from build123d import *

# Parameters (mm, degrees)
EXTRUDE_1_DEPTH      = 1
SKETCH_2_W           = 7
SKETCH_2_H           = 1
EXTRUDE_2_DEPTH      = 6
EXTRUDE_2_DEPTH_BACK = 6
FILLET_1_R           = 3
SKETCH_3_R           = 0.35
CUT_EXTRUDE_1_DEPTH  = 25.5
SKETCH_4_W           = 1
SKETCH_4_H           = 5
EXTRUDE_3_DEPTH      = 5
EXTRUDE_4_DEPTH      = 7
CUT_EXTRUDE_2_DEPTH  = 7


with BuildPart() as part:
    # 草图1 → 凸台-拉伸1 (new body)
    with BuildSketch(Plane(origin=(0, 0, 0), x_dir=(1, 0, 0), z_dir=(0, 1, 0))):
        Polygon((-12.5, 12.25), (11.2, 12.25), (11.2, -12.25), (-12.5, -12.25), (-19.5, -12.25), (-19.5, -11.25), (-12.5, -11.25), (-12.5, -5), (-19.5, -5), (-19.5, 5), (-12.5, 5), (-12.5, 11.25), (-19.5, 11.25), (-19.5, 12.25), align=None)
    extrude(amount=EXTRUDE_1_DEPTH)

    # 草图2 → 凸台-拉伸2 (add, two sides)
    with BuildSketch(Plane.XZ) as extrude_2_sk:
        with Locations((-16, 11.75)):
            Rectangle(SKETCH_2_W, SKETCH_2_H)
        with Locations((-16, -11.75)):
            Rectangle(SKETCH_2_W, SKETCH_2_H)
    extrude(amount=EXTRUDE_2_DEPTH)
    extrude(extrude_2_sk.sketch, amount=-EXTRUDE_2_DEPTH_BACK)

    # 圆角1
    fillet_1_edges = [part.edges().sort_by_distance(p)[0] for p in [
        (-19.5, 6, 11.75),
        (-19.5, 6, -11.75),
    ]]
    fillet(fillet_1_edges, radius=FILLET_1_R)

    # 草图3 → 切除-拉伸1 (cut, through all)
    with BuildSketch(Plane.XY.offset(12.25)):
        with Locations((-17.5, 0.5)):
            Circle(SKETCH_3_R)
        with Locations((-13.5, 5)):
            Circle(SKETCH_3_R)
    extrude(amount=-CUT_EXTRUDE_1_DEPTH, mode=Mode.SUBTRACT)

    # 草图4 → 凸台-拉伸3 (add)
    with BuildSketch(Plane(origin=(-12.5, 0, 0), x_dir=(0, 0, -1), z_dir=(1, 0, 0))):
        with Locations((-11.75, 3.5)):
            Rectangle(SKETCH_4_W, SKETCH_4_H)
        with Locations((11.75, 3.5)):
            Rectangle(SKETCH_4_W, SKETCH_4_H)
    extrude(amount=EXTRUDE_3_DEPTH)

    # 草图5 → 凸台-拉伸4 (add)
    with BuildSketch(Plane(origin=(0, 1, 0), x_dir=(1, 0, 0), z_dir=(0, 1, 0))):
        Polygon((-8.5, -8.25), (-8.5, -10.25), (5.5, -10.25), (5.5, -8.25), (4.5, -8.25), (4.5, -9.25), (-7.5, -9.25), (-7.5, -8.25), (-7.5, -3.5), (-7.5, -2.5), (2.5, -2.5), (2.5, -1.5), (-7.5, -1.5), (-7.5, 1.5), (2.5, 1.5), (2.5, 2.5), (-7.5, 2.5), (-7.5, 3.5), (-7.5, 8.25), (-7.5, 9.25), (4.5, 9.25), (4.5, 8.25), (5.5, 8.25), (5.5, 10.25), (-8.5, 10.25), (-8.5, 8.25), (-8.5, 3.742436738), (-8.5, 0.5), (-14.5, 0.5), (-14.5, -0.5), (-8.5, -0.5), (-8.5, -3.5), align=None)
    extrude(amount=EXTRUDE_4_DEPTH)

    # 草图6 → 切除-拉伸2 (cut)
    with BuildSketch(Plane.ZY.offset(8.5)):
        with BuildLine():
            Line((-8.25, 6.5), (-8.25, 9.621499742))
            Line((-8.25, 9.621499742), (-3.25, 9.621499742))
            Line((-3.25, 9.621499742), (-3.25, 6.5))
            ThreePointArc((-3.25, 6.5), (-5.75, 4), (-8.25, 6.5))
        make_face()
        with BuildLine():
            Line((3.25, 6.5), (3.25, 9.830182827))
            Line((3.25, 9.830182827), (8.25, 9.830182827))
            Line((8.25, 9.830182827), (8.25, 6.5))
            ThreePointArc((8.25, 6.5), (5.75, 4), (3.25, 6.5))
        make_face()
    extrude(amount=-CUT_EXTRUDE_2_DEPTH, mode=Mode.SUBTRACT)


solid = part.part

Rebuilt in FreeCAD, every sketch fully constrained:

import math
import FreeCAD as App
import Part
import Sketcher
Q = App.Units.Quantity


def edges_at(feature, points):
    """Names of the edges that pass closest to the given points."""
    edges = feature.Shape.Edges
    near = lambda p: min(range(len(edges)), key=lambda i: edges[i].distToShape(Part.Vertex(*p))[0])
    return sorted({f"Edge{near(p) + 1}" for p in points})

doc = App.newDocument("Part")
body = doc.addObject("PartDesign::Body", "Body")

sketch1 = body.newObject("Sketcher::SketchObject", "Sketch")
sketch1.AttachmentSupport = (doc.getObject("XZ_Plane"), [""])
sketch1.MapMode = "FlatFace"
sketch1.addGeometry(Part.LineSegment(App.Vector(11.2, -12.2, 0), App.Vector(-19.5, -12.2, 0)), False)
sketch1.addGeometry(Part.LineSegment(App.Vector(-19.5, -12.2, 0), App.Vector(-19.5, -11.2, 0)), False)
sketch1.addGeometry(Part.LineSegment(App.Vector(-19.5, -11.2, 0), App.Vector(-12.5, -11.2, 0)), False)
sketch1.addGeometry(Part.LineSegment(App.Vector(-12.5, -11.2, 0), App.Vector(-12.5, -5, 0)), False)
sketch1.addGeometry(Part.LineSegment(App.Vector(-12.5, -5, 0), App.Vector(-19.5, -5, 0)), False)
sketch1.addGeometry(Part.LineSegment(App.Vector(-19.5, -5, 0), App.Vector(-19.5, 5, 0)), False)
sketch1.addGeometry(Part.LineSegment(App.Vector(-19.5, 5, 0), App.Vector(-12.5, 5, 0)), False)
sketch1.addGeometry(Part.LineSegment(App.Vector(-12.5, 5, 0), App.Vector(-12.5, 11.2, 0)), False)
sketch1.addGeometry(Part.LineSegment(App.Vector(-12.5, 11.2, 0), App.Vector(-19.5, 11.2, 0)), False)
sketch1.addGeometry(Part.LineSegment(App.Vector(-19.5, 11.2, 0), App.Vector(-19.5, 12.2, 0)), False)
sketch1.addGeometry(Part.LineSegment(App.Vector(-19.5, 12.2, 0), App.Vector(11.2, 12.2, 0)), False)
sketch1.addGeometry(Part.LineSegment(App.Vector(11.2, 12.2, 0), App.Vector(11.2, -12.2, 0)), False)
sketch1.addConstraint(Sketcher.Constraint("Coincident", 0, 2, 1, 1))
sketch1.addConstraint(Sketcher.Constraint("Coincident", 1, 2, 2, 1))
sketch1.addConstraint(Sketcher.Constraint("Coincident", 2, 2, 3, 1))
sketch1.addConstraint(Sketcher.Constraint("Coincident", 3, 2, 4, 1))
sketch1.addConstraint(Sketcher.Constraint("Coincident", 4, 2, 5, 1))
sketch1.addConstraint(Sketcher.Constraint("Coincident", 5, 2, 6, 1))
sketch1.addConstraint(Sketcher.Constraint("Coincident", 6, 2, 7, 1))
sketch1.addConstraint(Sketcher.Constraint("Coincident", 7, 2, 8, 1))
sketch1.addConstraint(Sketcher.Constraint("Coincident", 8, 2, 9, 1))
sketch1.addConstraint(Sketcher.Constraint("Coincident", 9, 2, 10, 1))
sketch1.addConstraint(Sketcher.Constraint("Coincident", 10, 2, 11, 1))
sketch1.addConstraint(Sketcher.Constraint("Coincident", 11, 2, 0, 1))
sketch1.addConstraint(Sketcher.Constraint("Horizontal", 0))
sketch1.addConstraint(Sketcher.Constraint("Vertical", 1))
sketch1.addConstraint(Sketcher.Constraint("Horizontal", 2))
sketch1.addConstraint(Sketcher.Constraint("Vertical", 3))
sketch1.addConstraint(Sketcher.Constraint("Horizontal", 4))
sketch1.addConstraint(Sketcher.Constraint("Vertical", 5))
sketch1.addConstraint(Sketcher.Constraint("Horizontal", 6))
sketch1.addConstraint(Sketcher.Constraint("Vertical", 7))
sketch1.addConstraint(Sketcher.Constraint("Horizontal", 8))
sketch1.addConstraint(Sketcher.Constraint("Vertical", 9))
sketch1.addConstraint(Sketcher.Constraint("Horizontal", 10))
sketch1.addConstraint(Sketcher.Constraint("Vertical", 11))
sketch1.addConstraint(Sketcher.Constraint("Symmetric", 3, 2, 6, 2, -1))
sketch1.addConstraint(Sketcher.Constraint("Symmetric", 1, 2, 8, 2, -1))
sketch1.addConstraint(Sketcher.Constraint("Vertical", 1, 2, 4, 2))
sketch1.addConstraint(Sketcher.Constraint("Equal", 1, 9))
sketch1.addConstraint(Sketcher.Constraint("DistanceX", 2, 1, 2, 2, Q("7 mm")))
sketch1.addConstraint(Sketcher.Constraint("DistanceY", 1, 1, 1, 2, Q("1 mm")))
sketch1.addConstraint(Sketcher.Constraint("DistanceY", 5, 1, 5, 2, Q("10 mm")))
sketch1.addConstraint(Sketcher.Constraint("DistanceX", 0, 2, 0, 1, Q("30.7 mm")))
sketch1.addConstraint(Sketcher.Constraint("DistanceY", 11, 2, 11, 1, Q("24.5 mm")))
sketch1.addConstraint(Sketcher.Constraint("DistanceX", 0, 2, -1, 1, Q("19.5 mm")))
pad1 = body.newObject("PartDesign::Pad", "Pad")
pad1.Profile = sketch1
pad1.Length = 1
pad1.Reversed = True

sketch2 = body.newObject("Sketcher::SketchObject", "Sketch001")
sketch2.AttachmentSupport = (doc.getObject("XZ_Plane"), [""])
sketch2.MapMode = "FlatFace"
sketch2.addGeometry(Part.LineSegment(App.Vector(-19.5, 12.2, 0), App.Vector(-19.5, 11.2, 0)), False)
sketch2.addGeometry(Part.LineSegment(App.Vector(-19.5, 11.2, 0), App.Vector(-12.5, 11.2, 0)), False)
sketch2.addGeometry(Part.LineSegment(App.Vector(-12.5, 11.2, 0), App.Vector(-12.5, 12.2, 0)), False)
sketch2.addGeometry(Part.LineSegment(App.Vector(-12.5, 12.2, 0), App.Vector(-19.5, 12.2, 0)), False)
sketch2.addGeometry(Part.LineSegment(App.Vector(-19.5, -11.2, 0), App.Vector(-19.5, -12.2, 0)), False)
sketch2.addGeometry(Part.LineSegment(App.Vector(-19.5, -12.2, 0), App.Vector(-12.5, -12.2, 0)), False)
sketch2.addGeometry(Part.LineSegment(App.Vector(-12.5, -12.2, 0), App.Vector(-12.5, -11.2, 0)), False)
sketch2.addGeometry(Part.LineSegment(App.Vector(-12.5, -11.2, 0), App.Vector(-19.5, -11.2, 0)), False)
sketch2.addConstraint(Sketcher.Constraint("Coincident", 0, 2, 1, 1))
sketch2.addConstraint(Sketcher.Constraint("Coincident", 1, 2, 2, 1))
sketch2.addConstraint(Sketcher.Constraint("Coincident", 2, 2, 3, 1))
sketch2.addConstraint(Sketcher.Constraint("Coincident", 3, 2, 0, 1))
sketch2.addConstraint(Sketcher.Constraint("Coincident", 4, 2, 5, 1))
sketch2.addConstraint(Sketcher.Constraint("Coincident", 5, 2, 6, 1))
sketch2.addConstraint(Sketcher.Constraint("Coincident", 6, 2, 7, 1))
sketch2.addConstraint(Sketcher.Constraint("Coincident", 7, 2, 4, 1))
sketch2.addConstraint(Sketcher.Constraint("Vertical", 0))
sketch2.addConstraint(Sketcher.Constraint("Horizontal", 1))
sketch2.addConstraint(Sketcher.Constraint("Vertical", 2))
sketch2.addConstraint(Sketcher.Constraint("Horizontal", 3))
sketch2.addConstraint(Sketcher.Constraint("Vertical", 4))
sketch2.addConstraint(Sketcher.Constraint("Horizontal", 5))
sketch2.addConstraint(Sketcher.Constraint("Vertical", 6))
sketch2.addConstraint(Sketcher.Constraint("Horizontal", 7))
sketch2.addConstraint(Sketcher.Constraint("Symmetric", 3, 2, 4, 2, -1))
sketch2.addConstraint(Sketcher.Constraint("Symmetric", 1, 2, 6, 2, -1))
sketch2.addConstraint(Sketcher.Constraint("DistanceX", 1, 1, 1, 2, Q("7 mm")))
sketch2.addConstraint(Sketcher.Constraint("DistanceY", 0, 2, 0, 1, Q("1 mm")))
sketch2.addConstraint(Sketcher.Constraint("DistanceX", 0, 2, -1, 1, Q("19.5 mm")))
sketch2.addConstraint(Sketcher.Constraint("DistanceY", 4, 2, 0, 2, Q("23.5 mm")))
pad2 = body.newObject("PartDesign::Pad", "Pad001")
pad2.Profile = sketch2
pad2.Type = "TwoLengths"
pad2.Length = 6
pad2.Length2 = 6
doc.recompute()

fillet = body.newObject("PartDesign::Fillet", "Fillet")
fillet.Base = (pad2, edges_at(pad2, [(-19.5, 6, 11.75), (-19.5, 6, -11.75)]))
fillet.Radius = 3

sketch3 = body.newObject("Sketcher::SketchObject", "Sketch002")
sketch3.AttachmentSupport = (doc.getObject("XY_Plane"), [""])
sketch3.MapMode = "FlatFace"
sketch3.AttachmentOffset = App.Placement(App.Vector(0, 0, 12.25), App.Rotation())
sketch3.addGeometry(Part.Circle(App.Vector(-17.5, 0.5, 0), App.Vector(0, 0, 1), 0.35), False)
sketch3.addGeometry(Part.Circle(App.Vector(-13.5, 5, 0), App.Vector(0, 0, 1), 0.35), False)
sketch3.addConstraint(Sketcher.Constraint("Equal", 0, 1))
sketch3.addConstraint(Sketcher.Constraint("Diameter", 0, Q("0.7 mm")))
sketch3.addConstraint(Sketcher.Constraint("DistanceY", -1, 1, 1, 3, Q("5 mm")))
sketch3.addConstraint(Sketcher.Constraint("DistanceX", 0, 3, 1, 3, Q("4 mm")))
sketch3.addConstraint(Sketcher.Constraint("DistanceX", 0, 3, -1, 1, Q("17.5 mm")))
sketch3.addConstraint(Sketcher.Constraint("DistanceY", -1, 1, 0, 3, Q("0.5 mm")))
pocket1 = body.newObject("PartDesign::Pocket", "Pocket")
pocket1.Profile = sketch3
pocket1.Type = "ThroughAll"

sketch4 = body.newObject("Sketcher::SketchObject", "Sketch003")
sketch4.AttachmentSupport = (doc.getObject("YZ_Plane"), [""])
sketch4.MapMode = "FlatFace"
sketch4.AttachmentOffset = App.Placement(App.Vector(0, 0, -12.5), App.Rotation())
sketch4.addGeometry(Part.LineSegment(App.Vector(6, 12.2, 0), App.Vector(1, 12.2, 0)), False)
sketch4.addGeometry(Part.LineSegment(App.Vector(1, 12.2, 0), App.Vector(1, 11.2, 0)), False)
sketch4.addGeometry(Part.LineSegment(App.Vector(1, 11.2, 0), App.Vector(6, 11.2, 0)), False)
sketch4.addGeometry(Part.LineSegment(App.Vector(6, 11.2, 0), App.Vector(6, 12.2, 0)), False)
sketch4.addGeometry(Part.LineSegment(App.Vector(6, -11.2, 0), App.Vector(1, -11.2, 0)), False)
sketch4.addGeometry(Part.LineSegment(App.Vector(1, -11.2, 0), App.Vector(1, -12.2, 0)), False)
sketch4.addGeometry(Part.LineSegment(App.Vector(1, -12.2, 0), App.Vector(6, -12.2, 0)), False)
sketch4.addGeometry(Part.LineSegment(App.Vector(6, -12.2, 0), App.Vector(6, -11.2, 0)), False)
sketch4.addConstraint(Sketcher.Constraint("Coincident", 0, 2, 1, 1))
sketch4.addConstraint(Sketcher.Constraint("Coincident", 1, 2, 2, 1))
sketch4.addConstraint(Sketcher.Constraint("Coincident", 2, 2, 3, 1))
sketch4.addConstraint(Sketcher.Constraint("Coincident", 3, 2, 0, 1))
sketch4.addConstraint(Sketcher.Constraint("Coincident", 4, 2, 5, 1))
sketch4.addConstraint(Sketcher.Constraint("Coincident", 5, 2, 6, 1))
sketch4.addConstraint(Sketcher.Constraint("Coincident", 6, 2, 7, 1))
sketch4.addConstraint(Sketcher.Constraint("Coincident", 7, 2, 4, 1))
sketch4.addConstraint(Sketcher.Constraint("Horizontal", 0))
sketch4.addConstraint(Sketcher.Constraint("Vertical", 1))
sketch4.addConstraint(Sketcher.Constraint("Horizontal", 2))
sketch4.addConstraint(Sketcher.Constraint("Vertical", 3))
sketch4.addConstraint(Sketcher.Constraint("Horizontal", 4))
sketch4.addConstraint(Sketcher.Constraint("Vertical", 5))
sketch4.addConstraint(Sketcher.Constraint("Horizontal", 6))
sketch4.addConstraint(Sketcher.Constraint("Vertical", 7))
sketch4.addConstraint(Sketcher.Constraint("Symmetric", 1, 2, 4, 2, -1))
sketch4.addConstraint(Sketcher.Constraint("Symmetric", 3, 2, 6, 2, -1))
sketch4.addConstraint(Sketcher.Constraint("DistanceX", 0, 2, 0, 1, Q("5 mm")))
sketch4.addConstraint(Sketcher.Constraint("DistanceY", 1, 2, 1, 1, Q("1 mm")))
sketch4.addConstraint(Sketcher.Constraint("DistanceX", -1, 1, 0, 2, Q("1 mm")))
sketch4.addConstraint(Sketcher.Constraint("DistanceY", 4, 2, 1, 2, Q("22.5 mm")))
pad3 = body.newObject("PartDesign::Pad", "Pad002")
pad3.Profile = sketch4
pad3.Length = 5

sketch5 = body.newObject("Sketcher::SketchObject", "Sketch004")
sketch5.AttachmentSupport = (doc.getObject("XZ_Plane"), [""])
sketch5.MapMode = "FlatFace"
sketch5.AttachmentOffset = App.Placement(App.Vector(0, 0, -1), App.Rotation())
sketch5.addGeometry(Part.LineSegment(App.Vector(-8.5, 10.2, 0), App.Vector(5.5, 10.2, 0)), False)
sketch5.addGeometry(Part.LineSegment(App.Vector(5.5, 10.2, 0), App.Vector(5.5, 8.2, 0)), False)
sketch5.addGeometry(Part.LineSegment(App.Vector(5.5, 8.2, 0), App.Vector(4.5, 8.2, 0)), False)
sketch5.addGeometry(Part.LineSegment(App.Vector(4.5, 8.2, 0), App.Vector(4.5, 9.2, 0)), False)
sketch5.addGeometry(Part.LineSegment(App.Vector(4.5, 9.2, 0), App.Vector(-7.5, 9.2, 0)), False)
sketch5.addGeometry(Part.LineSegment(App.Vector(-7.5, 9.2, 0), App.Vector(-7.5, 2.5, 0)), False)
sketch5.addGeometry(Part.LineSegment(App.Vector(-7.5, 2.5, 0), App.Vector(2.5, 2.5, 0)), False)
sketch5.addGeometry(Part.LineSegment(App.Vector(2.5, 2.5, 0), App.Vector(2.5, 1.5, 0)), False)
sketch5.addGeometry(Part.LineSegment(App.Vector(2.5, 1.5, 0), App.Vector(-7.5, 1.5, 0)), False)
sketch5.addGeometry(Part.LineSegment(App.Vector(-7.5, 1.5, 0), App.Vector(-7.5, -1.5, 0)), False)
sketch5.addGeometry(Part.LineSegment(App.Vector(-7.5, -1.5, 0), App.Vector(2.5, -1.5, 0)), False)
sketch5.addGeometry(Part.LineSegment(App.Vector(2.5, -1.5, 0), App.Vector(2.5, -2.5, 0)), False)
sketch5.addGeometry(Part.LineSegment(App.Vector(2.5, -2.5, 0), App.Vector(-7.5, -2.5, 0)), False)
sketch5.addGeometry(Part.LineSegment(App.Vector(-7.5, -2.5, 0), App.Vector(-7.5, -9.2, 0)), False)
sketch5.addGeometry(Part.LineSegment(App.Vector(-7.5, -9.2, 0), App.Vector(4.5, -9.2, 0)), False)
sketch5.addGeometry(Part.LineSegment(App.Vector(4.5, -9.2, 0), App.Vector(4.5, -8.2, 0)), False)
sketch5.addGeometry(Part.LineSegment(App.Vector(4.5, -8.2, 0), App.Vector(5.5, -8.2, 0)), False)
sketch5.addGeometry(Part.LineSegment(App.Vector(5.5, -8.2, 0), App.Vector(5.5, -10.2, 0)), False)
sketch5.addGeometry(Part.LineSegment(App.Vector(5.5, -10.2, 0), App.Vector(-8.5, -10.2, 0)), False)
sketch5.addGeometry(Part.LineSegment(App.Vector(-8.5, -10.2, 0), App.Vector(-8.5, -0.5, 0)), False)
sketch5.addGeometry(Part.LineSegment(App.Vector(-8.5, -0.5, 0), App.Vector(-14.5, -0.5, 0)), False)
sketch5.addGeometry(Part.LineSegment(App.Vector(-14.5, -0.5, 0), App.Vector(-14.5, 0.5, 0)), False)
sketch5.addGeometry(Part.LineSegment(App.Vector(-14.5, 0.5, 0), App.Vector(-8.5, 0.5, 0)), False)
sketch5.addGeometry(Part.LineSegment(App.Vector(-8.5, 0.5, 0), App.Vector(-8.5, 10.2, 0)), False)
sketch5.addConstraint(Sketcher.Constraint("Coincident", 0, 2, 1, 1))
sketch5.addConstraint(Sketcher.Constraint("Coincident", 1, 2, 2, 1))
sketch5.addConstraint(Sketcher.Constraint("Coincident", 2, 2, 3, 1))
sketch5.addConstraint(Sketcher.Constraint("Coincident", 3, 2, 4, 1))
sketch5.addConstraint(Sketcher.Constraint("Coincident", 4, 2, 5, 1))
sketch5.addConstraint(Sketcher.Constraint("Coincident", 5, 2, 6, 1))
sketch5.addConstraint(Sketcher.Constraint("Coincident", 6, 2, 7, 1))
sketch5.addConstraint(Sketcher.Constraint("Coincident", 7, 2, 8, 1))
sketch5.addConstraint(Sketcher.Constraint("Coincident", 8, 2, 9, 1))
sketch5.addConstraint(Sketcher.Constraint("Coincident", 9, 2, 10, 1))
sketch5.addConstraint(Sketcher.Constraint("Coincident", 10, 2, 11, 1))
sketch5.addConstraint(Sketcher.Constraint("Coincident", 11, 2, 12, 1))
sketch5.addConstraint(Sketcher.Constraint("Coincident", 12, 2, 13, 1))
sketch5.addConstraint(Sketcher.Constraint("Coincident", 13, 2, 14, 1))
sketch5.addConstraint(Sketcher.Constraint("Coincident", 14, 2, 15, 1))
sketch5.addConstraint(Sketcher.Constraint("Coincident", 15, 2, 16, 1))
sketch5.addConstraint(Sketcher.Constraint("Coincident", 16, 2, 17, 1))
sketch5.addConstraint(Sketcher.Constraint("Coincident", 17, 2, 18, 1))
sketch5.addConstraint(Sketcher.Constraint("Coincident", 18, 2, 19, 1))
sketch5.addConstraint(Sketcher.Constraint("Coincident", 19, 2, 20, 1))
sketch5.addConstraint(Sketcher.Constraint("Coincident", 20, 2, 21, 1))
sketch5.addConstraint(Sketcher.Constraint("Coincident", 21, 2, 22, 1))
sketch5.addConstraint(Sketcher.Constraint("Coincident", 22, 2, 23, 1))
sketch5.addConstraint(Sketcher.Constraint("Coincident", 23, 2, 0, 1))
sketch5.addConstraint(Sketcher.Constraint("Horizontal", 0))
sketch5.addConstraint(Sketcher.Constraint("Vertical", 1))
sketch5.addConstraint(Sketcher.Constraint("Horizontal", 2))
sketch5.addConstraint(Sketcher.Constraint("Vertical", 3))
sketch5.addConstraint(Sketcher.Constraint("Horizontal", 4))
sketch5.addConstraint(Sketcher.Constraint("Vertical", 5))
sketch5.addConstraint(Sketcher.Constraint("Horizontal", 6))
sketch5.addConstraint(Sketcher.Constraint("Vertical", 7))
sketch5.addConstraint(Sketcher.Constraint("Horizontal", 8))
sketch5.addConstraint(Sketcher.Constraint("Vertical", 9))
sketch5.addConstraint(Sketcher.Constraint("Horizontal", 10))
sketch5.addConstraint(Sketcher.Constraint("Vertical", 11))
sketch5.addConstraint(Sketcher.Constraint("Horizontal", 12))
sketch5.addConstraint(Sketcher.Constraint("Vertical", 13))
sketch5.addConstraint(Sketcher.Constraint("Horizontal", 14))
sketch5.addConstraint(Sketcher.Constraint("Vertical", 15))
sketch5.addConstraint(Sketcher.Constraint("Horizontal", 16))
sketch5.addConstraint(Sketcher.Constraint("Vertical", 17))
sketch5.addConstraint(Sketcher.Constraint("Horizontal", 18))
sketch5.addConstraint(Sketcher.Constraint("Vertical", 19))
sketch5.addConstraint(Sketcher.Constraint("Horizontal", 20))
sketch5.addConstraint(Sketcher.Constraint("Vertical", 21))
sketch5.addConstraint(Sketcher.Constraint("Horizontal", 22))
sketch5.addConstraint(Sketcher.Constraint("Vertical", 23))
sketch5.addConstraint(Sketcher.Constraint("Symmetric", 7, 2, 10, 2, -1))
sketch5.addConstraint(Sketcher.Constraint("Symmetric", 5, 2, 12, 2, -1))
sketch5.addConstraint(Sketcher.Constraint("Symmetric", 3, 2, 14, 2, -1))
sketch5.addConstraint(Sketcher.Constraint("Symmetric", 1, 2, 16, 2, -1))
sketch5.addConstraint(Sketcher.Constraint("Symmetric", 19, 2, 22, 2, -1))
sketch5.addConstraint(Sketcher.Constraint("Vertical", 5, 2, 8, 2))
sketch5.addConstraint(Sketcher.Constraint("Equal", 16, 3))
sketch5.addConstraint(Sketcher.Constraint("Equal", 3, 7))
sketch5.addConstraint(Sketcher.Constraint("Equal", 1, 17))
sketch5.addConstraint(Sketcher.Constraint("Equal", 15, 21))
sketch5.addConstraint(Sketcher.Constraint("DistanceX", 0, 1, 0, 2, Q("14 mm")))
sketch5.addConstraint(Sketcher.Constraint("DistanceX", 2, 2, 2, 1, Q("1 mm")))
sketch5.addConstraint(Sketcher.Constraint("DistanceX", 4, 2, 4, 1, Q("12 mm")))
sketch5.addConstraint(Sketcher.Constraint("DistanceX", 6, 1, 6, 2, Q("10 mm")))
sketch5.addConstraint(Sketcher.Constraint("DistanceX", 20, 2, 20, 1, Q("6 mm")))
sketch5.addConstraint(Sketcher.Constraint("DistanceY", 1, 2, 1, 1, Q("2 mm")))
sketch5.addConstraint(Sketcher.Constraint("DistanceY", 9, 2, 9, 1, Q("3 mm")))
sketch5.addConstraint(Sketcher.Constraint("DistanceY", 5, 2, 5, 1, Q("6.75 mm")))
sketch5.addConstraint(Sketcher.Constraint("DistanceX", -1, 1, 0, 2, Q("5.5 mm")))
pad4 = body.newObject("PartDesign::Pad", "Pad003")
pad4.Profile = sketch5
pad4.Length = 7
pad4.Reversed = True

sketch6 = body.newObject("Sketcher::SketchObject", "Sketch005")
sketch6.AttachmentSupport = (doc.getObject("YZ_Plane"), [""])
sketch6.MapMode = "FlatFace"
sketch6.AttachmentOffset = App.Placement(App.Vector(0, 0, -8.5), App.Rotation())
sketch6.addGeometry(Part.LineSegment(App.Vector(9.6, -8.2, 0), App.Vector(6.5, -8.2, 0)), False)
sketch6.addGeometry(Part.ArcOfCircle(Part.Circle(App.Vector(6.5, -5.8, 0), App.Vector(0, 0, 1), 2.5), math.radians(90), math.radians(270)), False)
sketch6.addGeometry(Part.LineSegment(App.Vector(6.5, -3.2, 0), App.Vector(9.6, -3.2, 0)), False)
sketch6.addGeometry(Part.LineSegment(App.Vector(9.6, -3.2, 0), App.Vector(9.6, -8.2, 0)), False)
sketch6.addGeometry(Part.LineSegment(App.Vector(9.8, 3.2, 0), App.Vector(6.5, 3.2, 0)), False)
sketch6.addGeometry(Part.ArcOfCircle(Part.Circle(App.Vector(6.5, 5.8, 0), App.Vector(0, 0, 1), 2.5), math.radians(90), math.radians(270)), False)
sketch6.addGeometry(Part.LineSegment(App.Vector(6.5, 8.2, 0), App.Vector(9.8, 8.2, 0)), False)
sketch6.addGeometry(Part.LineSegment(App.Vector(9.8, 8.2, 0), App.Vector(9.8, 3.2, 0)), False)
sketch6.addConstraint(Sketcher.Constraint("Tangent", 0, 2, 1, 2))
sketch6.addConstraint(Sketcher.Constraint("Tangent", 1, 1, 2, 1))
sketch6.addConstraint(Sketcher.Constraint("Coincident", 2, 2, 3, 1))
sketch6.addConstraint(Sketcher.Constraint("Coincident", 3, 2, 0, 1))
sketch6.addConstraint(Sketcher.Constraint("Tangent", 4, 2, 5, 2))
sketch6.addConstraint(Sketcher.Constraint("Tangent", 5, 1, 6, 1))
sketch6.addConstraint(Sketcher.Constraint("Coincident", 6, 2, 7, 1))
sketch6.addConstraint(Sketcher.Constraint("Coincident", 7, 2, 4, 1))
sketch6.addConstraint(Sketcher.Constraint("Horizontal", 0))
sketch6.addConstraint(Sketcher.Constraint("Horizontal", 2))
sketch6.addConstraint(Sketcher.Constraint("Vertical", 3))
sketch6.addConstraint(Sketcher.Constraint("Horizontal", 4))
sketch6.addConstraint(Sketcher.Constraint("Horizontal", 6))
sketch6.addConstraint(Sketcher.Constraint("Vertical", 7))
sketch6.addConstraint(Sketcher.Constraint("Equal", 1, 5))
sketch6.addConstraint(Sketcher.Constraint("Symmetric", 1, 3, 5, 3, -1))
sketch6.addConstraint(Sketcher.Constraint("Radius", 1, Q("2.5 mm")))
sketch6.addConstraint(Sketcher.Constraint("DistanceY", 0, 2, 5, 3, Q("14 mm")))
sketch6.addConstraint(Sketcher.Constraint("DistanceX", -1, 1, 1, 3, Q("6.5 mm")))
sketch6.addConstraint(Sketcher.Constraint("DistanceX", 0, 2, 0, 1, Q("3.1215 mm")))
sketch6.addConstraint(Sketcher.Constraint("DistanceX", 4, 2, 4, 1, Q("3.330183 mm")))
pocket2 = body.newObject("PartDesign::Pocket", "Pocket001")
pocket2.Profile = sketch6
pocket2.Length = 7
pocket2.Reversed = True

doc.recompute()
